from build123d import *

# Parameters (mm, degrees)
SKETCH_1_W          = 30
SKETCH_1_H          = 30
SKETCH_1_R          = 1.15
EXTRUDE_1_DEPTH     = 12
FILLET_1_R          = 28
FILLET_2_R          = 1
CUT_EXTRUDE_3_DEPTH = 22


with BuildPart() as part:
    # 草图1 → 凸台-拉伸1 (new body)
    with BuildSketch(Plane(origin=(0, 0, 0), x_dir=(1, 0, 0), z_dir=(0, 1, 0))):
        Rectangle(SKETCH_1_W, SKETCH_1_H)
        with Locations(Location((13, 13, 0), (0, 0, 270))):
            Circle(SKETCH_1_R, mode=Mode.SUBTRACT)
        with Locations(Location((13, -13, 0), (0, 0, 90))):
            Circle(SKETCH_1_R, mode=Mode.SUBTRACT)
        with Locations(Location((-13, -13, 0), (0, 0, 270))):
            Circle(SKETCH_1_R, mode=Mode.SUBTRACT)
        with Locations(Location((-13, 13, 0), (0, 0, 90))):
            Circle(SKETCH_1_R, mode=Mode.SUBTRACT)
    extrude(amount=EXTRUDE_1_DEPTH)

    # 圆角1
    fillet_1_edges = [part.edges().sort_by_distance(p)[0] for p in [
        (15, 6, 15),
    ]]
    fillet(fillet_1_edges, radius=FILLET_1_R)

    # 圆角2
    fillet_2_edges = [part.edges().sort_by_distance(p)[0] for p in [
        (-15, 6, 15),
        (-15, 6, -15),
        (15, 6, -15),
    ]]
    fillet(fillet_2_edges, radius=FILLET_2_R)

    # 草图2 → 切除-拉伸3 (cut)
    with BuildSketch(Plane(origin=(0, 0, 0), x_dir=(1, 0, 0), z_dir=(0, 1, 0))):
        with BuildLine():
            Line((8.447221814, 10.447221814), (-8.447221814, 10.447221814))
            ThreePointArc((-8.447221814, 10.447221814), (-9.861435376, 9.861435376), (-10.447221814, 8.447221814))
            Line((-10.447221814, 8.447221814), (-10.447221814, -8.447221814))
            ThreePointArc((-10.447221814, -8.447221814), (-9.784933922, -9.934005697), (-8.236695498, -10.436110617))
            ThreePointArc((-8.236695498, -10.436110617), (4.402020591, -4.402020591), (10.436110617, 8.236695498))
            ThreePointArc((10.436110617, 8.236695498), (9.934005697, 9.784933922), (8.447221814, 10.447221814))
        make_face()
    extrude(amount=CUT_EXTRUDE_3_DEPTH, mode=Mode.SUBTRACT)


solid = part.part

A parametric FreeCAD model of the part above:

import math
import FreeCAD as App
import Part
import Sketcher

V = App.Vector


def edges_at(feature, points):
    """Names of the edges that pass closest to the given points."""
    edges = feature.Shape.Edges
    near = lambda p: min(range(len(edges)), key=lambda i: edges[i].distToShape(Part.Vertex(*p))[0])
    return sorted({f"Edge{near(p) + 1}" for p in points})


def add_polygon(sketch, points):
    """Adds a closed chain of lines whose ends are joined by coincident constraints."""
    first, n = sketch.GeometryCount, len(points)
    for a, b in zip(points, points[1:] + points[:1]):
        sketch.addGeometry(Part.LineSegment(App.Vector(*a, 0), App.Vector(*b, 0)), False)
    for i in range(n):
        sketch.addConstraint(Sketcher.Constraint("Coincident", first + i, 2, first + (i + 1) % n, 1))

doc = App.newDocument("Part")
body = doc.addObject("PartDesign::Body", "Body")

sketch1 = doc.addObject("Sketcher::SketchObject", "Sketch")
body.addObject(sketch1)
sketch1.AttachmentSupport = (doc.XZ_Plane, [""])
sketch1.MapMode = "FlatFace"
add_polygon(sketch1, [(-15, -15), (-15, 15), (15, 15), (15, -15)])
sketch1.addGeometry(Part.Circle(V(-13, 13, 0), V(0, 0, 1), 1.15), False)
sketch1.addGeometry(Part.Circle(V(13, 13, 0), V(0, 0, 1), 1.15), False)
sketch1.addGeometry(Part.Circle(V(-13, -13, 0), V(0, 0, 1), 1.15), False)
sketch1.addGeometry(Part.Circle(V(13, -13, 0), V(0, 0, 1), 1.15), False)
sketch1.addConstraint([
    Sketcher.Constraint("Vertical", 0),
    Sketcher.Constraint("Horizontal", 1),
    Sketcher.Constraint("Vertical", 2),
    Sketcher.Constraint("Horizontal", 3),
    Sketcher.Constraint("Equal", 4, 5),
    Sketcher.Constraint("Equal", 5, 6),
    Sketcher.Constraint("Equal", 6, 7),
    Sketcher.Constraint("Symmetric", 5, 3, 6, 3, -1, 1),
    Sketcher.Constraint("Symmetric", 4, 3, 7, 3, -1, 1),
    Sketcher.Constraint("Symmetric", 0, 2, 2, 2, -1, 1),
    Sketcher.Constraint("Symmetric", 4, 3, 5, 3, -2),
    Sketcher.Constraint("Equal", 3, 0),
    Sketcher.Constraint("Diameter", 4, 2.3),
    Sketcher.Constraint("DistanceX", 1, 1, 1, 2, 30.0),
    Sketcher.Constraint("DistanceX", 4, 3, -1, 1, 13.0),
    Sketcher.Constraint("DistanceY", -1, 1, 4, 3, 13.0),
])
pad1 = doc.addObject("PartDesign::Pad", "Pad")
body.addObject(pad1)
pad1.Profile = sketch1
pad1.Length = 12
pad1.Reversed = True
doc.recompute()

fillet = doc.addObject("PartDesign::Fillet", "Fillet")
body.addObject(fillet)
fillet.Base = (pad1, edges_at(pad1, [(15, 6, 15)]))
fillet.Radius = 28
doc.recompute()

fillet2 = doc.addObject("PartDesign::Fillet", "Fillet001")
body.addObject(fillet2)
fillet2.Base = (fillet, edges_at(fillet, [(-15, 6, 15), (-15, 6, -15), (15, 6, -15)]))
fillet2.Radius = 1

sketch2 = doc.addObject("Sketcher::SketchObject", "Sketch001")
body.addObject(sketch2)
sketch2.AttachmentSupport = (doc.XZ_Plane, [""])
sketch2.MapMode = "FlatFace"
sketch2.addGeometry([
    Part.LineSegment(V(8.447222, -10.447222, 0), V(-8.447222, -10.447222, 0)),
    Part.ArcOfCircle(Part.Circle(V(-8.447222, -8.447222, 0), V(0, 0, 1), 2), math.radians(-180), math.radians(-90)),
    Part.LineSegment(V(-10.447222, -8.447222, 0), V(-10.447222, 8.447222, 0)),
    Part.ArcOfCircle(Part.Circle(V(-8.447222, 8.447222, 0), V(0, 0, 1), 2), math.radians(83.957672), math.radians(180)),
    Part.ArcOfCircle(Part.Circle(V(-10.447222, -10.447222, 0), V(0, 0, 1), 21), math.radians(6.042328), math.radians(83.957672)),
    Part.ArcOfCircle(Part.Circle(V(8.447222, -8.447222, 0), V(0, 0, 1), 2), math.radians(-90), math.radians(6.042328)),
], False)
sketch2.addConstraint([
    Sketcher.Constraint("Tangent", 0, 2, 1, 2),
    Sketcher.Constraint("Tangent", 1, 1, 2, 1),
    Sketcher.Constraint("Tangent", 2, 2, 3, 2),
    Sketcher.Constraint("Tangent", 3, 1, 4, 2),
    Sketcher.Constraint("Tangent", 4, 1, 5, 2),
    Sketcher.Constraint("Tangent", 5, 1, 0, 1),
    Sketcher.Constraint("Horizontal", 0),
    Sketcher.Constraint("Vertical", 2),
    Sketcher.Constraint("Equal", 1, 3),
    Sketcher.Constraint("Equal", 3, 5),
    Sketcher.Constraint("Symmetric", 3, 3, 5, 3, -1, 1),
    Sketcher.Constraint("Horizontal", 4, 3, 0, 2),
    Sketcher.Constraint("Vertical", 4, 3, 1, 1),
    Sketcher.Constraint("Radius", 1, 2.0),
    Sketcher.Constraint("Radius", 4, 21.0),
])
pocket1 = doc.addObject("PartDesign::Pocket", "Pocket")
body.addObject(pocket1)
pocket1.Profile = sketch2
pocket1.Length = 22

doc.recompute()
